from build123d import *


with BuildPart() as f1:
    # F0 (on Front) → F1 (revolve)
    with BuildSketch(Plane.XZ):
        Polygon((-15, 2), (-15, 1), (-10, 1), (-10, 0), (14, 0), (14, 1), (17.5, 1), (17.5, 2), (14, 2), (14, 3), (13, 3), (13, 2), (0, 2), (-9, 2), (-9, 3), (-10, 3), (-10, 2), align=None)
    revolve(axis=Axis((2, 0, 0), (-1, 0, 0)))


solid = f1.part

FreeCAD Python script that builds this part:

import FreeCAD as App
import Part
import Sketcher

V = App.Vector
Q = App.Units.Quantity


def add_polygon(sketch, points):
    """Adds a closed chain of lines whose ends are joined by coincident constraints."""
    first, n = sketch.GeometryCount, len(points)
    for a, b in zip(points, points[1:] + points[:1]):
        sketch.addGeometry(Part.LineSegment(App.Vector(*a, 0), App.Vector(*b, 0)), False)
    for i in range(n):
        sketch.addConstraint(Sketcher.Constraint("Coincident", first + i, 2, first + (i + 1) % n, 1))

doc = App.newDocument("Part")
params = doc.addObject("Spreadsheet::Sheet", "Params")
for row, (alias, value) in enumerate([
    ("sketch1_width", "5 mm"),
    ("sketch1_width2", "24 mm"),
    ("sketch1_width3", "1 mm"),
    ("sketch1_width4", "3.5 mm"),
    ("revolution_angle", "360 deg"),
], start=1):
    params.set(f"A{row}", alias)
    params.set(f"B{row}", "=" + value)
    params.setAlias(f"B{row}", alias)

body = doc.addObject("PartDesign::Body", "Body")

sketch1 = body.newObject("Sketcher::SketchObject", "Sketch")
sketch1.AttachmentSupport = (doc.getObject("XZ_Plane"), [""])
sketch1.MapMode = "FlatFace"
add_polygon(sketch1, [(-15, 2), (-15, 1), (-10, 1), (-10, 0), (14, 0), (14, 1), (17.5, 1), (17.5, 2), (14, 2), (14, 3), (13, 3), (13, 2), (-9, 2), (-9, 3), (-10, 3), (-10, 2)])
sketch1.addConstraint([
    Sketcher.Constraint("Vertical", 0),
    Sketcher.Constraint("Horizontal", 1),
    Sketcher.Constraint("Vertical", 2),
    Sketcher.Constraint("Horizontal", 3),
    Sketcher.Constraint("Vertical", 4),
    Sketcher.Constraint("Horizontal", 5),
    Sketcher.Constraint("Vertical", 6),
    Sketcher.Constraint("Horizontal", 7),
    Sketcher.Constraint("Vertical", 8),
    Sketcher.Constraint("Horizontal", 9),
    Sketcher.Constraint("Vertical", 10),
    Sketcher.Constraint("Horizontal", 11),
    Sketcher.Constraint("Vertical", 12),
    Sketcher.Constraint("Horizontal", 13),
    Sketcher.Constraint("Vertical", 14),
    Sketcher.Constraint("Horizontal", 15),
    Sketcher.Constraint("PointOnObject", 2, 2, -1),
    Sketcher.Constraint("Horizontal", 1, 2, 4, 2),
    Sketcher.Constraint("Horizontal", 7, 2, 10, 2),
    Sketcher.Constraint("Horizontal", 9, 2, 12, 2),
    Sketcher.Constraint("Horizontal", 11, 2, 14, 2),
    Sketcher.Constraint("Vertical", 4, 2, 7, 2),
    Sketcher.Constraint("Vertical", 2, 2, 13, 2),
    Sketcher.Constraint("Equal", 9, 13),
    Sketcher.Constraint("Equal", 13, 0),
    Sketcher.Constraint("Equal", 0, 2),
    Sketcher.Constraint("Equal", 6, 8),
    Sketcher.Constraint("DistanceX", 1, 1, 1, 2, Q("5 mm")),
    Sketcher.Constraint("DistanceX", 3, 1, 3, 2, Q("24 mm")),
    Sketcher.Constraint("DistanceX", 9, 2, 9, 1, Q("1 mm")),
    Sketcher.Constraint("DistanceX", 5, 1, 5, 2, Q("3.5 mm")),
    Sketcher.Constraint("DistanceX", 0, 2, -1, 1, Q("15 mm")),
])
sketch1.setExpression("Constraints[43]", "Params.sketch1_width")
sketch1.setExpression("Constraints[44]", "Params.sketch1_width2")
sketch1.setExpression("Constraints[45]", "Params.sketch1_width3")
sketch1.setExpression("Constraints[46]", "Params.sketch1_width4")
revolution = body.newObject("PartDesign::Revolution", "Revolution")
revolution.Profile = sketch1
revolution.ReferenceAxis = (sketch1, ["H_Axis"])
revolution.setExpression("Angle", "Params.revolution_angle")

doc.recompute()
